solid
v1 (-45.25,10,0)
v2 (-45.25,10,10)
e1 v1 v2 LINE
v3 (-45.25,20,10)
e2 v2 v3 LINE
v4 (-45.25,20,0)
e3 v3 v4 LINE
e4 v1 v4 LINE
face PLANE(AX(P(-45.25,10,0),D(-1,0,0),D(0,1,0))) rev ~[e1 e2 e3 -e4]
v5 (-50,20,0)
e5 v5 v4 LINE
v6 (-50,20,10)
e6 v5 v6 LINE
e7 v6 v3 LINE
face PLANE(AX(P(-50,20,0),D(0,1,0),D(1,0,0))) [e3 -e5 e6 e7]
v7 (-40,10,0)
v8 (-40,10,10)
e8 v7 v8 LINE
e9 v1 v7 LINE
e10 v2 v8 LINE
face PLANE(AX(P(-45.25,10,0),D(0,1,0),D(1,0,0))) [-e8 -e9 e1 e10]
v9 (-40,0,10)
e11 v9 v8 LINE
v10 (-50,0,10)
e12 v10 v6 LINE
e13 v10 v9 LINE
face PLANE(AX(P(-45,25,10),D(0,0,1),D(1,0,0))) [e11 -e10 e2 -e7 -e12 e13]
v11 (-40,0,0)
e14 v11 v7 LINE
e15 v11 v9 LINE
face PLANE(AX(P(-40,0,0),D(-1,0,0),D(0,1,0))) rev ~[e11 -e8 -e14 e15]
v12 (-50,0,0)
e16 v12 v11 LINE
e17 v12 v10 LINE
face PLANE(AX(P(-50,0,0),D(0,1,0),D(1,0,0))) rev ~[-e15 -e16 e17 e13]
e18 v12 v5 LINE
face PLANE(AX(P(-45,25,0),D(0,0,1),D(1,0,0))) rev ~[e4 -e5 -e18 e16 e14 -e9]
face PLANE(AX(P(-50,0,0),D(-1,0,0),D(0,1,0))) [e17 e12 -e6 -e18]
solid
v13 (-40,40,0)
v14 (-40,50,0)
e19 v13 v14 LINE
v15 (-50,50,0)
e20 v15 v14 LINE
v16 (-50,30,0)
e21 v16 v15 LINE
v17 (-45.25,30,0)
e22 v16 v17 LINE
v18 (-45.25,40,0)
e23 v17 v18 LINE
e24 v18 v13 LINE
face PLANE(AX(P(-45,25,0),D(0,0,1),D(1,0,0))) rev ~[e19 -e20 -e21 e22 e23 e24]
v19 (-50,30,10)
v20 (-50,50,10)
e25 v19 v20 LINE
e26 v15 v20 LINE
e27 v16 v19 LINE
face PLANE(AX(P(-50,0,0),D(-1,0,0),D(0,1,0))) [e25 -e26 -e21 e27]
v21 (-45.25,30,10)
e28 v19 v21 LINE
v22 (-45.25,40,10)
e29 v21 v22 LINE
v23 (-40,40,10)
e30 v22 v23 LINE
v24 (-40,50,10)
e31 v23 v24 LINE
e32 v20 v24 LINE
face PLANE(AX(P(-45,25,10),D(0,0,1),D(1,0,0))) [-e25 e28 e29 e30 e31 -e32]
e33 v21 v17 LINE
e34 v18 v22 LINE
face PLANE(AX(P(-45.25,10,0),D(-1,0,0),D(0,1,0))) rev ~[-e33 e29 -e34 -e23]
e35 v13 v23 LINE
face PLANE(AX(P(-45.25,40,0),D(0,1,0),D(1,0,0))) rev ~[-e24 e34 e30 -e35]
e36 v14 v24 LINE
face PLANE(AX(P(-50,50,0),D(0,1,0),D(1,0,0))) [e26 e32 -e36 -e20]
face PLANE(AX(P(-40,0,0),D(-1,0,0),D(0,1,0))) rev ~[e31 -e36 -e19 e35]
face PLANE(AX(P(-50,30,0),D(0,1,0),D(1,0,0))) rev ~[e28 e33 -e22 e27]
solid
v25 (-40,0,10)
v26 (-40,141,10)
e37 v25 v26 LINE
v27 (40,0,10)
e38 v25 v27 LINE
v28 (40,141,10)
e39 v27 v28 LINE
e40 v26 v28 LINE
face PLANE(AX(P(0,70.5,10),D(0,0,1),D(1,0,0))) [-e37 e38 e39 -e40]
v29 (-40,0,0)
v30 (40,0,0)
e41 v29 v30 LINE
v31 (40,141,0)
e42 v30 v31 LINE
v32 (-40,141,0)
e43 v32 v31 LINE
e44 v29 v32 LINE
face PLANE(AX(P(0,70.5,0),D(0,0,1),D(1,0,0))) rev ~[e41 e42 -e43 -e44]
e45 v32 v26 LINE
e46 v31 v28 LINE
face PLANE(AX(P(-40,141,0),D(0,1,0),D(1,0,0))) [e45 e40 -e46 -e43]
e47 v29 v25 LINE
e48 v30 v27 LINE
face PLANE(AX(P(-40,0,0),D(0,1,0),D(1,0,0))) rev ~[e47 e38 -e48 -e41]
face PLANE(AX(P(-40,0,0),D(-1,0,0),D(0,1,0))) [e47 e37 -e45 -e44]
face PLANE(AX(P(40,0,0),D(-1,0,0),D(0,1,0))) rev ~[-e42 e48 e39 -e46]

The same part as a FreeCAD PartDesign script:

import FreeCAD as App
import Part
import Sketcher

V = App.Vector

doc = App.newDocument("Part")
body = doc.addObject("PartDesign::Body", "Body")

# Sketch on XY plane
sketch1 = doc.addObject("Sketcher::SketchObject", "Sketch")
body.addObject(sketch1)
sketch1.AttachmentSupport = (doc.XY_Plane, [""])
sketch1.MapMode = "FlatFace"
sketch1.addGeometry([
    Part.LineSegment(V(-40, 141, 0), V(-40, 0, 0)),
    Part.LineSegment(V(-40, 0, 0), V(40, 0, 0)),
    Part.LineSegment(V(40, 0, 0), V(40, 141, 0)),
    Part.LineSegment(V(40, 141, 0), V(-40, 141, 0)),
], False)
sketch1.addConstraint([
    Sketcher.Constraint("Coincident", 0, 2, 1, 1),
    Sketcher.Constraint("Coincident", 1, 2, 2, 1),
    Sketcher.Constraint("Coincident", 2, 2, 3, 1),
    Sketcher.Constraint("Coincident", 3, 2, 0, 1),
    Sketcher.Constraint("Vertical", 0),
    Sketcher.Constraint("Horizontal", 1),
    Sketcher.Constraint("Vertical", 2),
    Sketcher.Constraint("Horizontal", 3),
    Sketcher.Constraint("Symmetric", 0, 2, 1, 2, -1, 1),
    Sketcher.Constraint("DistanceX", 1, 1, 1, 2, 80.0),
    Sketcher.Constraint("DistanceY", 0, 2, 0, 1, 141.0),
])
pad1 = doc.addObject("PartDesign::Pad", "Pad")
body.addObject(pad1)
pad1.Profile = sketch1
pad1.Length = 10
body2 = doc.addObject("PartDesign::Body", "Body001")

# Sketch on XY plane
sketch2 = doc.addObject("Sketcher::SketchObject", "Sketch001")
body2.addObject(sketch2)
sketch2.AttachmentSupport = (doc.getObject("XY_Plane001"), [""])
sketch2.MapMode = "FlatFace"
sketch2.addGeometry([
    Part.LineSegment(V(-50, 30, 0), V(-50, 20, 0)),
    Part.LineSegment(V(-50, 20, 0), V(-40, 20, 0)),
    Part.LineSegment(V(-40, 20, 0), V(-40, 30, 0)),
    Part.LineSegment(V(-40, 30, 0), V(-50, 30, 0)),
], False)
sketch2.addConstraint([
    Sketcher.Constraint("Coincident", 0, 2, 1, 1),
    Sketcher.Constraint("Coincident", 1, 2, 2, 1),
    Sketcher.Constraint("Coincident", 2, 2, 3, 1),
    Sketcher.Constraint("Coincident", 3, 2, 0, 1),
    Sketcher.Constraint("Vertical", 0),
    Sketcher.Constraint("Horizontal", 1),
    Sketcher.Constraint("Vertical", 2),
    Sketcher.Constraint("Horizontal", 3),
    Sketcher.Constraint("Equal", 3, 0),
    Sketcher.Constraint("DistanceX", 1, 1, 1, 2, 10.0),
    Sketcher.Constraint("DistanceX", 0, 2, -1, 1, 50.0),
    Sketcher.Constraint("DistanceY", -1, 1, 0, 2, 20.0),
])
pad2 = doc.addObject("PartDesign::Pad", "Pad001")
body2.addObject(pad2)
pad2.Profile = sketch2
pad2.Length = 10
body3 = doc.addObject("PartDesign::Body", "Body002")

# Sketch on XY plane
sketch3 = doc.addObject("Sketcher::SketchObject", "Sketch002")
body3.addObject(sketch3)
sketch3.AttachmentSupport = (doc.getObject("XY_Plane002"), [""])
sketch3.MapMode = "FlatFace"
sketch3.addGeometry([
    Part.LineSegment(V(-45, 40, 0), V(-45, 10, 0)),
    Part.LineSegment(V(-45, 10, 0), V(-40, 10, 0)),
    Part.LineSegment(V(-40, 10, 0), V(-40, 40, 0)),
    Part.LineSegment(V(-40, 40, 0), V(-45, 40, 0)),
], False)
sketch3.addConstraint([
    Sketcher.Constraint("Coincident", 0, 2, 1, 1),
    Sketcher.Constraint("Coincident", 1, 2, 2, 1),
    Sketcher.Constraint("Coincident", 2, 2, 3, 1),
    Sketcher.Constraint("Coincident", 3, 2, 0, 1),
    Sketcher.Constraint("Vertical", 0),
    Sketcher.Constraint("Horizontal", 1),
    Sketcher.Constraint("Vertical", 2),
    Sketcher.Constraint("Horizontal", 3),
    Sketcher.Constraint("DistanceY", 0, 2, 0, 1, 30.0),
    Sketcher.Constraint("DistanceY", -1, 1, 0, 2, 10.0),
    Sketcher.Constraint("DistanceX", 1, 2, -1, 1, 40.0),
    Sketcher.Constraint("DistanceX", 1, 1, 1, 2, 5.25),
])
pad3 = doc.addObject("PartDesign::Pad", "Pad002")
body3.addObject(pad3)
pad3.Profile = sketch3
pad3.Length = 10
body4 = doc.addObject("PartDesign::Body", "Body003")
body4.AllowCompound = True

# Sketch on XY plane
sketch4 = doc.addObject("Sketcher::SketchObject", "Sketch003")
body4.addObject(sketch4)
sketch4.AttachmentSupport = (doc.getObject("XY_Plane003"), [""])
sketch4.MapMode = "FlatFace"
sketch4.addGeometry([
    Part.LineSegment(V(-50, 50, 0), V(-50, 0, 0)),
    Part.LineSegment(V(-50, 0, 0), V(-40, 0, 0)),
    Part.LineSegment(V(-40, 0, 0), V(-40, 50, 0)),
    Part.LineSegment(V(-40, 50, 0), V(-50, 50, 0)),
], False)
sketch4.addConstraint([
    Sketcher.Constraint("Coincident", 0, 2, 1, 1),
    Sketcher.Constraint("Coincident", 1, 2, 2, 1),
    Sketcher.Constraint("Coincident", 2, 2, 3, 1),
    Sketcher.Constraint("Coincident", 3, 2, 0, 1),
    Sketcher.Constraint("Vertical", 0),
    Sketcher.Constraint("Horizontal", 1),
    Sketcher.Constraint("Vertical", 2),
    Sketcher.Constraint("Horizontal", 3),
    Sketcher.Constraint("PointOnObject", 0, 2, -1),
    Sketcher.Constraint("DistanceX", 1, 1, 1, 2, 10.0),
    Sketcher.Constraint("DistanceY", 0, 2, 0, 1, 50.0),
    Sketcher.Constraint("DistanceX", 0, 2, -1, 1, 50.0),
])
pad4 = doc.addObject("PartDesign::Pad", "Pad003")
body4.addObject(pad4)
pad4.Profile = sketch4
pad4.Length = 10
doc.recompute()

boolean = doc.addObject("PartDesign::Boolean", "Boolean")
body4.addObject(boolean)
boolean.Type = "Cut"
boolean.addObjects([body3])
doc.recompute()

boolean2 = doc.addObject("PartDesign::Boolean", "Boolean001")
body4.addObject(boolean2)
boolean2.Type = "Cut"
boolean2.addObjects([body2])

doc.recompute()
